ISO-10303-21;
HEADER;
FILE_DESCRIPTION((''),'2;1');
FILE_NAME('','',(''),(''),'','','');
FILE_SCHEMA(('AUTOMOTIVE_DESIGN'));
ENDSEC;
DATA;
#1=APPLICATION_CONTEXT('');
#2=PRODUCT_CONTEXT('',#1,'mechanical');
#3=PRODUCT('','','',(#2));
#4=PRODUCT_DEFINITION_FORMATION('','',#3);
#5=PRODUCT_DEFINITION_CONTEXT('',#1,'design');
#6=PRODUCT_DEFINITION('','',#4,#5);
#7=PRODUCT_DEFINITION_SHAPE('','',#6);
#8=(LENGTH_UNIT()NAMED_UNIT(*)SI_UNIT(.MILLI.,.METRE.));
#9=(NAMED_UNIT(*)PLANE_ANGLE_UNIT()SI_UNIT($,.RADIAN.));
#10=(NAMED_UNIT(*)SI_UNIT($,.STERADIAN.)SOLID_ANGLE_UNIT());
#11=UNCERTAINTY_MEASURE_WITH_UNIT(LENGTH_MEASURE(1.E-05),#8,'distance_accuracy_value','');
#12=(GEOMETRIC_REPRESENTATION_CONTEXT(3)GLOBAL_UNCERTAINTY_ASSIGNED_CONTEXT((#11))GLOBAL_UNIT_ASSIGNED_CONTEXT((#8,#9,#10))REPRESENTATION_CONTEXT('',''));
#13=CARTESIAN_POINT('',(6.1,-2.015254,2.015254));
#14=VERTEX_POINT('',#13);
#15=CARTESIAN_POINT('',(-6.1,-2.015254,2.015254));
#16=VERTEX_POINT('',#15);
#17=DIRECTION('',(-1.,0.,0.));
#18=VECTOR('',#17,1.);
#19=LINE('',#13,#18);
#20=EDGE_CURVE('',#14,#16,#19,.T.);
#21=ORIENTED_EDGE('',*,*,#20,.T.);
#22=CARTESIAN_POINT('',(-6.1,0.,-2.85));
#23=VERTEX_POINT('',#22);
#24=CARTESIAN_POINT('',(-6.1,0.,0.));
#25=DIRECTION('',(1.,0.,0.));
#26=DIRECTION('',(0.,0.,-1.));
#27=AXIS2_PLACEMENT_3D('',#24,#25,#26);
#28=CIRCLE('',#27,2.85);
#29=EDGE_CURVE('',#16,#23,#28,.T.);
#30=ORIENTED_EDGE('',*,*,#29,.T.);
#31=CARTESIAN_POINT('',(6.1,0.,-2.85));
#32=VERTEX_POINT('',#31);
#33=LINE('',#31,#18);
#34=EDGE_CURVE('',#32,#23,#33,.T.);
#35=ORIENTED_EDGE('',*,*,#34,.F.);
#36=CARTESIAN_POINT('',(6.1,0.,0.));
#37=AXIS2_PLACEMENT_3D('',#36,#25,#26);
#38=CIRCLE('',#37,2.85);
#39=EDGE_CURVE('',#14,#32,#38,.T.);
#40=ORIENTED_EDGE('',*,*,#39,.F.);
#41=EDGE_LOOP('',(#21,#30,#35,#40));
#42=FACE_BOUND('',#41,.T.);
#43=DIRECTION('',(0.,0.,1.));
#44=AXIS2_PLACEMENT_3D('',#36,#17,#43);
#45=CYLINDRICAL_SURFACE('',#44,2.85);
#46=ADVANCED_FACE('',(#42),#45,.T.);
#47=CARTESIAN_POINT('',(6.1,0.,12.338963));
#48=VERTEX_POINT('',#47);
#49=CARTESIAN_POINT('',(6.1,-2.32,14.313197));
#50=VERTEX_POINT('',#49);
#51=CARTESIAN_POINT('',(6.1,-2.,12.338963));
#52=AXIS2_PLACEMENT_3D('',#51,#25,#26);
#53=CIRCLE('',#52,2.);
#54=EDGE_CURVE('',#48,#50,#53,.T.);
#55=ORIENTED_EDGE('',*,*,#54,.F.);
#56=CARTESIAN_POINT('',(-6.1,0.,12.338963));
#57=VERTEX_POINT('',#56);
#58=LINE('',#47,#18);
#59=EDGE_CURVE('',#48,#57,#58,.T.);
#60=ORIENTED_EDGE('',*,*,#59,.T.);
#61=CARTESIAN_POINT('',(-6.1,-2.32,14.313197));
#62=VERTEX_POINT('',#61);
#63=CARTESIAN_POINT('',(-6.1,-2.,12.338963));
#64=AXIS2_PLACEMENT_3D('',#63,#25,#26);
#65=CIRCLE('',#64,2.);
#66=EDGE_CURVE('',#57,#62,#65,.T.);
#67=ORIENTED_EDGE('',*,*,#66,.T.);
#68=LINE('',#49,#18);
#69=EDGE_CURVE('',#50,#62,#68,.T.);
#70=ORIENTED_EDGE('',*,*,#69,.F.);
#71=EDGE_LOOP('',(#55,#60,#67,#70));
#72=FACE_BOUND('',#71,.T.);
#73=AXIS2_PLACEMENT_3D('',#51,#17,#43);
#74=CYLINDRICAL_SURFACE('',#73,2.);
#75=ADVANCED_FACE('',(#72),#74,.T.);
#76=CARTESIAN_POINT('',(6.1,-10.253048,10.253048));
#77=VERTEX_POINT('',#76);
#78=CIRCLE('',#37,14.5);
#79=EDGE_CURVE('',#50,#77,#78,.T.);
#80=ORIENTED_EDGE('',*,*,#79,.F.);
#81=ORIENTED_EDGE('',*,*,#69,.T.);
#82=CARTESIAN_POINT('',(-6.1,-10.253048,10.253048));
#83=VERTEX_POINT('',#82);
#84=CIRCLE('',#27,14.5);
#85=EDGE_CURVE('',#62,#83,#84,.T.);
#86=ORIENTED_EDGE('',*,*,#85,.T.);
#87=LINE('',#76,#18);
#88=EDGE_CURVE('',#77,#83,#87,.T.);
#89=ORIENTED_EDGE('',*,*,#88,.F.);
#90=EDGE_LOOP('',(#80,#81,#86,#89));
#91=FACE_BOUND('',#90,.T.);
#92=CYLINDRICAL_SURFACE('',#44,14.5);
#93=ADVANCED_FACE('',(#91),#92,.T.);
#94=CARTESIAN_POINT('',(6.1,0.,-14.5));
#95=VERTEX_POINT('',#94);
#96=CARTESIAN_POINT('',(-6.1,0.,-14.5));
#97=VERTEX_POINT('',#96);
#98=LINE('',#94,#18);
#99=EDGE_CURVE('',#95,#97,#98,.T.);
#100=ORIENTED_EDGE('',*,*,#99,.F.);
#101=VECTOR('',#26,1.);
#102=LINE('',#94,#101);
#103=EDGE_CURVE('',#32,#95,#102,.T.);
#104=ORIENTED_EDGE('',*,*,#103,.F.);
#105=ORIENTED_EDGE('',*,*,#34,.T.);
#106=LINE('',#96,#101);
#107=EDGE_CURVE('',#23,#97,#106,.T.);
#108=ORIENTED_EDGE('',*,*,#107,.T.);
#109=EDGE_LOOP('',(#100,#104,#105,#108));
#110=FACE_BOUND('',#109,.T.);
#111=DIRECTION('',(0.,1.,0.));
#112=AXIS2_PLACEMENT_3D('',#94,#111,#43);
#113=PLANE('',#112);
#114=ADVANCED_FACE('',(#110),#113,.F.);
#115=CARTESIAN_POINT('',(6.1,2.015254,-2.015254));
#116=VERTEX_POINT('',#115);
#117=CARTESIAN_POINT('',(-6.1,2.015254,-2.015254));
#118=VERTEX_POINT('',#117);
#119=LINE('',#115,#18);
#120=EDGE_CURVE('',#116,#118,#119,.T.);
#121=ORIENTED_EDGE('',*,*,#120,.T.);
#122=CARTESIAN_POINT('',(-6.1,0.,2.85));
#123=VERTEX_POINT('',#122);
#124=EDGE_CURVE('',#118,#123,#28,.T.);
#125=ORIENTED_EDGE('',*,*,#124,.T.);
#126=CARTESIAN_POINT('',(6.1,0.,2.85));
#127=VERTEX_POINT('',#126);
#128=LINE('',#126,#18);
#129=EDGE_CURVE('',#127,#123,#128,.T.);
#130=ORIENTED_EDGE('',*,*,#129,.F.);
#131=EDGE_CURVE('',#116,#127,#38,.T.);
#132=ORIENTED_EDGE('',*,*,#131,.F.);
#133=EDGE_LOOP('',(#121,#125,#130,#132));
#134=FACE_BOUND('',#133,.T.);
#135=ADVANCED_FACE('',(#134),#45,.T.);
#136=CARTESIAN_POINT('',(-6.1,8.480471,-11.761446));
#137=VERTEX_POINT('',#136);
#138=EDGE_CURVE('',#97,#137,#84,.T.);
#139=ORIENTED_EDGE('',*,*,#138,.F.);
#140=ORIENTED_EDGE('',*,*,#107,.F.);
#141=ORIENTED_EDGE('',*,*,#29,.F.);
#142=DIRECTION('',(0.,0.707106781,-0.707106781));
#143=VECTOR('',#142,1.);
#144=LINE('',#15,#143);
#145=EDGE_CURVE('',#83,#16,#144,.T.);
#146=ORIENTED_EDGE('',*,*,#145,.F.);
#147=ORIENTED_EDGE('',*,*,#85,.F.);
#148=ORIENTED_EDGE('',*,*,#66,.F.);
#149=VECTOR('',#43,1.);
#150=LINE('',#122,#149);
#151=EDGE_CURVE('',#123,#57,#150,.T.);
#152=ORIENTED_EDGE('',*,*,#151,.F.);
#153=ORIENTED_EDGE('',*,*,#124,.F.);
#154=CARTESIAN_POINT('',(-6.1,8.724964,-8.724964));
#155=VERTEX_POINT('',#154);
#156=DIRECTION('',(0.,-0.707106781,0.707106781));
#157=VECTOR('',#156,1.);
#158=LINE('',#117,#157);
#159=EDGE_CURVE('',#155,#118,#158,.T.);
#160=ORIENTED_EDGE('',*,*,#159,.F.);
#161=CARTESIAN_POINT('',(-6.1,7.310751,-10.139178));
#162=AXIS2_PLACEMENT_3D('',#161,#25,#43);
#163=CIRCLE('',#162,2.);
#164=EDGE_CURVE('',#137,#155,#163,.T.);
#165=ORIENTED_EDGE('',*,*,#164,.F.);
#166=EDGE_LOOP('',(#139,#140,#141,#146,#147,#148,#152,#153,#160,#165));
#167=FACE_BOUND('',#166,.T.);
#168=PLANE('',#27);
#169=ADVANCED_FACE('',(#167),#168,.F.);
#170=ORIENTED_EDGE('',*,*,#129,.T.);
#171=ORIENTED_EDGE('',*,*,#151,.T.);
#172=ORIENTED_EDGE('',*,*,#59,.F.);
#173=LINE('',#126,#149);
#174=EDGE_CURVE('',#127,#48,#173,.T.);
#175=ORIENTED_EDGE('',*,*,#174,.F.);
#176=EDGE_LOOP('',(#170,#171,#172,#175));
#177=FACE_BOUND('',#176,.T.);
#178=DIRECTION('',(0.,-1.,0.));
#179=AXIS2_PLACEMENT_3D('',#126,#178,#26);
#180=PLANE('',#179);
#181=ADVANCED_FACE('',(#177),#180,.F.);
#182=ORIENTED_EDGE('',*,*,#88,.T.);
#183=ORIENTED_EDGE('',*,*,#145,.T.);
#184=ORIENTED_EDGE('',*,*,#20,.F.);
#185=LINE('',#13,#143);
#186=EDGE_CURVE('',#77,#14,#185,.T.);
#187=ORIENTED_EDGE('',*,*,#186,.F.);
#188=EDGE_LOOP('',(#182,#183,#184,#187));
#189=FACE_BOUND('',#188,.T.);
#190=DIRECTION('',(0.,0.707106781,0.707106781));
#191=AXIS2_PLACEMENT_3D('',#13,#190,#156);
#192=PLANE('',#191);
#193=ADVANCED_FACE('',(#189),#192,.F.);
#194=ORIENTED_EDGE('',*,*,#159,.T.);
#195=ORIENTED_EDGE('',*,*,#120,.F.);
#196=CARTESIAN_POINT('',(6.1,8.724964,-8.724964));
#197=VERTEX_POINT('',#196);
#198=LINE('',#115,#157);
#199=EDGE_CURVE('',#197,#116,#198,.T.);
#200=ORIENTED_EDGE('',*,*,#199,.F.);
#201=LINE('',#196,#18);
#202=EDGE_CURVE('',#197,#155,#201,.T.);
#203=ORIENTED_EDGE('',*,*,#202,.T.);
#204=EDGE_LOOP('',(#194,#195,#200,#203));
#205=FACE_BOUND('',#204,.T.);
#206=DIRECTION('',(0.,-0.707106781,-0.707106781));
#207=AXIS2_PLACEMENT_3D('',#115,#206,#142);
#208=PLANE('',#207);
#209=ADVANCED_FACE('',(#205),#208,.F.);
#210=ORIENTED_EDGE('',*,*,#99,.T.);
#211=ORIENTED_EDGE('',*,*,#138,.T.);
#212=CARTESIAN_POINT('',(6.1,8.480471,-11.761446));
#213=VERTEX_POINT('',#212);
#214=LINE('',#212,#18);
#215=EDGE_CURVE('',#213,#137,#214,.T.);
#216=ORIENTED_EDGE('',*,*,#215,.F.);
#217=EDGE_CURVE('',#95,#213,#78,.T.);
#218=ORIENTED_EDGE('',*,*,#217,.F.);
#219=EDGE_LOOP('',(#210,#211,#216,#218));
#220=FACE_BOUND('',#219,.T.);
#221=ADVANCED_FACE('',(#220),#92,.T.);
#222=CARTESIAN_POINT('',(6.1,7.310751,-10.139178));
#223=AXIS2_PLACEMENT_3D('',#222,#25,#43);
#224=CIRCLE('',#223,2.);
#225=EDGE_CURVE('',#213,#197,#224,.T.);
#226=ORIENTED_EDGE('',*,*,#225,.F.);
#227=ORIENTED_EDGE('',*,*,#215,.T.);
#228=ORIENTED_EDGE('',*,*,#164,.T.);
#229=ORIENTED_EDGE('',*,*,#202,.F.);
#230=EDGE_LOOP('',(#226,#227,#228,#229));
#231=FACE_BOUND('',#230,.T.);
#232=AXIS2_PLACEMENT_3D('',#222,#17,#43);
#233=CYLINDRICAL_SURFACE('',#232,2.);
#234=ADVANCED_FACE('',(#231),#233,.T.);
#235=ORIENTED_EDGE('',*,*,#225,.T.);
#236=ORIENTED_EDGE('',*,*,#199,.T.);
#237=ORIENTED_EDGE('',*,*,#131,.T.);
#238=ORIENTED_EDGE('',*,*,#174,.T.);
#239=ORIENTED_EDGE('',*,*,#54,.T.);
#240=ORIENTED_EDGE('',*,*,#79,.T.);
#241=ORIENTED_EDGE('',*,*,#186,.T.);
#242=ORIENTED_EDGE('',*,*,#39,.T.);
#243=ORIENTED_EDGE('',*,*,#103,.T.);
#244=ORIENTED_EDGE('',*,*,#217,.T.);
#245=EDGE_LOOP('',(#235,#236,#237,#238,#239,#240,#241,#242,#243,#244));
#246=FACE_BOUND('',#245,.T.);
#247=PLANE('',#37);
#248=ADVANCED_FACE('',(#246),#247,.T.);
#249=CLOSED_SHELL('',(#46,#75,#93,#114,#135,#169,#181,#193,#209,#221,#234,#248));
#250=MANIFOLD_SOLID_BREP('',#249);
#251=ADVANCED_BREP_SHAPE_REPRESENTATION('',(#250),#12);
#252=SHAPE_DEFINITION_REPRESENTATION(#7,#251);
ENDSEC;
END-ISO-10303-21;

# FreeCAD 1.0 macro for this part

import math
import FreeCAD as App
import Part
import Sketcher

V = App.Vector
Q = App.Units.Quantity

doc = App.newDocument("Part")
body = doc.addObject("PartDesign::Body", "Body")

sketch1 = doc.addObject("Sketcher::SketchObject", "Sketch")
body.addObject(sketch1)
sketch1.AttachmentSupport = (doc.YZ_Plane, [""])
sketch1.MapMode = "FlatFace"
sketch1.addGeometry(Part.LineSegment(V(8.7, -8.7, 0), V(2, -2, 0)), False)
sketch1.addGeometry(Part.ArcOfCircle(Part.Circle(V(0, 0, 0), V(0, 0, 1), 2.8), math.radians(-45), math.radians(90)), False)
sketch1.addGeometry(Part.LineSegment(V(0, 2.9, 0), V(0, 12.3, 0)), False)
sketch1.addGeometry(Part.ArcOfCircle(Part.Circle(V(-2, 12.3, 0), V(0, 0, 1), 2), math.radians(0), math.radians(99)), False)
sketch1.addGeometry(Part.ArcOfCircle(Part.Circle(V(0, 0, 0), V(0, 0, 1), 14.5), math.radians(99), math.radians(135)), False)
sketch1.addGeometry(Part.LineSegment(V(-10.3, 10.3, 0), V(-2, 2, 0)), False)
sketch1.addGeometry(Part.ArcOfCircle(Part.Circle(V(0, 0, 0), V(0, 0, 1), 2.8), math.radians(135), math.radians(270)), False)
sketch1.addGeometry(Part.LineSegment(V(0, -2.9, 0), V(0, -14.5, 0)), False)
sketch1.addGeometry(Part.ArcOfCircle(Part.Circle(V(0, 0, 0), V(0, 0, 1), 14.5), math.radians(-90), math.radians(-54)), False)
sketch1.addGeometry(Part.ArcOfCircle(Part.Circle(V(7.3, -10.1, 0), V(0, 0, 1), 2), math.radians(-54), math.radians(45)), False)
sketch1.addConstraint(Sketcher.Constraint("Coincident", 0, 2, 1, 1))
sketch1.addConstraint(Sketcher.Constraint("Coincident", 1, 2, 2, 1))
sketch1.addConstraint(Sketcher.Constraint("Tangent", 2, 2, 3, 1))
sketch1.addConstraint(Sketcher.Constraint("Tangent", 3, 2, 4, 1))
sketch1.addConstraint(Sketcher.Constraint("Coincident", 4, 2, 5, 1))
sketch1.addConstraint(Sketcher.Constraint("Coincident", 5, 2, 6, 1))
sketch1.addConstraint(Sketcher.Constraint("Coincident", 6, 2, 7, 1))
sketch1.addConstraint(Sketcher.Constraint("Coincident", 7, 2, 8, 1))
sketch1.addConstraint(Sketcher.Constraint("Tangent", 8, 2, 9, 1))
sketch1.addConstraint(Sketcher.Constraint("Tangent", 9, 2, 0, 1))
sketch1.addConstraint(Sketcher.Constraint("Vertical", 2))
sketch1.addConstraint(Sketcher.Constraint("Vertical", 7))
sketch1.addConstraint(Sketcher.Constraint("Coincident", 1, 3, -1, 1))
sketch1.addConstraint(Sketcher.Constraint("Coincident", 4, 3, -1, 1))
sketch1.addConstraint(Sketcher.Constraint("Coincident", 6, 3, -1, 1))
sketch1.addConstraint(Sketcher.Constraint("Coincident", 8, 3, -1, 1))
sketch1.addConstraint(Sketcher.Constraint("Equal", 1, 6))
sketch1.addConstraint(Sketcher.Constraint("Equal", 4, 8))
sketch1.addConstraint(Sketcher.Constraint("Equal", 3, 9))
sketch1.addConstraint(Sketcher.Constraint("PointOnObject", 1, 2, -2))
sketch1.addConstraint(Sketcher.Constraint("PointOnObject", 6, 2, -2))
sketch1.addConstraint(Sketcher.Constraint("Parallel", 0, 5))
sketch1.addConstraint(Sketcher.Constraint("Radius", 3, 2.0))
sketch1.addConstraint(Sketcher.Constraint("Radius", 4, 14.5))
sketch1.addConstraint(Sketcher.Constraint("Angle", 0, Q("135 deg")))
sketch1.addConstraint(Sketcher.Constraint("Radius", 1, 2.85))
sketch1.addConstraint(Sketcher.Constraint("DistanceX", -1, 1, 9, 3, 7.310751))
sketch1.addConstraint(Sketcher.Constraint("DistanceX", 4, 2, -1, 1, 10.253048))
pad1 = doc.addObject("PartDesign::Pad", "Pad")
body.addObject(pad1)
pad1.Profile = sketch1
pad1.Length = 12.2
pad1.Midplane = True

doc.recompute()
